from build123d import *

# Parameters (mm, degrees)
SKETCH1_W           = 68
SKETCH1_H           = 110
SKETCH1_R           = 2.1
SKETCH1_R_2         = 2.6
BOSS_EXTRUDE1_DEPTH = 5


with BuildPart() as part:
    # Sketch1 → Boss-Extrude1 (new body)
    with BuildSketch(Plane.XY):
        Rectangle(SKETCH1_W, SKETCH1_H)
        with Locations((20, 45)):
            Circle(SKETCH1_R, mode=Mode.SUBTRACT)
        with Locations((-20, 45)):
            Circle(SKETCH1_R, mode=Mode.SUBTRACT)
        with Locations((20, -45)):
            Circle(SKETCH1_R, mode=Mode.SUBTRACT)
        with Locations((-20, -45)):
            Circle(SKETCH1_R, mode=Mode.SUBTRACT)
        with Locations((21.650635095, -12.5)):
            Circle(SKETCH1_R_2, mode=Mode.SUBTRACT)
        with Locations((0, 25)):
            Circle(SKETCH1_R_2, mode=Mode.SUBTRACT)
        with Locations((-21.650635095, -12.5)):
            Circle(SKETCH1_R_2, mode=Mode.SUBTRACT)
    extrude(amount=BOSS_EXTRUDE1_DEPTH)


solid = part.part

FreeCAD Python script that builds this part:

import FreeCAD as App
import Part
import Sketcher
from FreeCAD import Vector
Q = App.Units.Quantity


def add_polygon(sketch, points):
    """Adds a closed chain of lines whose ends are joined by coincident constraints."""
    first, n = sketch.GeometryCount, len(points)
    for a, b in zip(points, points[1:] + points[:1]):
        sketch.addGeometry(Part.LineSegment(App.Vector(*a, 0), App.Vector(*b, 0)), False)
    for i in range(n):
        sketch.addConstraint(Sketcher.Constraint("Coincident", first + i, 2, first + (i + 1) % n, 1))

doc = App.newDocument("Part")
body = doc.addObject("PartDesign::Body", "Body")

sketch1 = body.newObject("Sketcher::SketchObject", "Sketch")
sketch1.AttachmentSupport = (doc.getObject("XY_Plane"), [""])
sketch1.MapMode = "FlatFace"
add_polygon(sketch1, [(-34, 55), (-34, -55), (34, -55), (34, 55)])
sketch1.addGeometry(Part.Circle(Vector(-20, -45, 0), Vector(0, 0, 1), 2.1), False)
sketch1.addGeometry(Part.Circle(Vector(-21.7, -12.5, 0), Vector(0, 0, 1), 2.6), False)
sketch1.addGeometry(Part.Circle(Vector(20, -45, 0), Vector(0, 0, 1), 2.1), False)
sketch1.addGeometry(Part.Circle(Vector(21.7, -12.5, 0), Vector(0, 0, 1), 2.6), False)
sketch1.addGeometry(Part.Circle(Vector(-20, 45, 0), Vector(0, 0, 1), 2.1), False)
sketch1.addGeometry(Part.Circle(Vector(0, 25, 0), Vector(0, 0, 1), 2.6), False)
sketch1.addGeometry(Part.Circle(Vector(20, 45, 0), Vector(0, 0, 1), 2.1), False)
sketch1.addConstraint(Sketcher.Constraint("Vertical", 0))
sketch1.addConstraint(Sketcher.Constraint("Horizontal", 1))
sketch1.addConstraint(Sketcher.Constraint("Vertical", 2))
sketch1.addConstraint(Sketcher.Constraint("Horizontal", 3))
sketch1.addConstraint(Sketcher.Constraint("Equal", 4, 6))
sketch1.addConstraint(Sketcher.Constraint("Equal", 5, 7))
sketch1.addConstraint(Sketcher.Constraint("Equal", 6, 8))
sketch1.addConstraint(Sketcher.Constraint("Equal", 7, 9))
sketch1.addConstraint(Sketcher.Constraint("Equal", 8, 10))
sketch1.addConstraint(Sketcher.Constraint("Symmetric", 6, 3, 8, 3, -1, 1))
sketch1.addConstraint(Sketcher.Constraint("Symmetric", 4, 3, 10, 3, -1, 1))
sketch1.addConstraint(Sketcher.Constraint("Symmetric", 0, 2, 2, 2, -1, 1))
sketch1.addConstraint(Sketcher.Constraint("Symmetric", 4, 3, 6, 3, -2))
sketch1.addConstraint(Sketcher.Constraint("Symmetric", 5, 3, 7, 3, -2))
sketch1.addConstraint(Sketcher.Constraint("PointOnObject", 9, 3, -2))
sketch1.addConstraint(Sketcher.Constraint("Diameter", 4, Q("4.2 mm")))
sketch1.addConstraint(Sketcher.Constraint("Diameter", 5, Q("5.2 mm")))
sketch1.addConstraint(Sketcher.Constraint("DistanceX", 1, 1, 1, 2, Q("68 mm")))
sketch1.addConstraint(Sketcher.Constraint("DistanceY", 0, 2, 0, 1, Q("110 mm")))
sketch1.addConstraint(Sketcher.Constraint("DistanceX", 4, 3, -1, 1, Q("20 mm")))
sketch1.addConstraint(Sketcher.Constraint("DistanceY", 4, 3, -1, 1, Q("45 mm")))
sketch1.addConstraint(Sketcher.Constraint("DistanceY", -1, 1, 9, 3, Q("25 mm")))
sketch1.addConstraint(Sketcher.Constraint("DistanceY", 5, 3, -1, 1, Q("12.5 mm")))
sketch1.addConstraint(Sketcher.Constraint("DistanceX", 5, 3, 7, 3, Q("43.30127 mm")))
pad1 = body.newObject("PartDesign::Pad", "Pad")
pad1.Profile = sketch1
pad1.Length = 5

doc.recompute()
